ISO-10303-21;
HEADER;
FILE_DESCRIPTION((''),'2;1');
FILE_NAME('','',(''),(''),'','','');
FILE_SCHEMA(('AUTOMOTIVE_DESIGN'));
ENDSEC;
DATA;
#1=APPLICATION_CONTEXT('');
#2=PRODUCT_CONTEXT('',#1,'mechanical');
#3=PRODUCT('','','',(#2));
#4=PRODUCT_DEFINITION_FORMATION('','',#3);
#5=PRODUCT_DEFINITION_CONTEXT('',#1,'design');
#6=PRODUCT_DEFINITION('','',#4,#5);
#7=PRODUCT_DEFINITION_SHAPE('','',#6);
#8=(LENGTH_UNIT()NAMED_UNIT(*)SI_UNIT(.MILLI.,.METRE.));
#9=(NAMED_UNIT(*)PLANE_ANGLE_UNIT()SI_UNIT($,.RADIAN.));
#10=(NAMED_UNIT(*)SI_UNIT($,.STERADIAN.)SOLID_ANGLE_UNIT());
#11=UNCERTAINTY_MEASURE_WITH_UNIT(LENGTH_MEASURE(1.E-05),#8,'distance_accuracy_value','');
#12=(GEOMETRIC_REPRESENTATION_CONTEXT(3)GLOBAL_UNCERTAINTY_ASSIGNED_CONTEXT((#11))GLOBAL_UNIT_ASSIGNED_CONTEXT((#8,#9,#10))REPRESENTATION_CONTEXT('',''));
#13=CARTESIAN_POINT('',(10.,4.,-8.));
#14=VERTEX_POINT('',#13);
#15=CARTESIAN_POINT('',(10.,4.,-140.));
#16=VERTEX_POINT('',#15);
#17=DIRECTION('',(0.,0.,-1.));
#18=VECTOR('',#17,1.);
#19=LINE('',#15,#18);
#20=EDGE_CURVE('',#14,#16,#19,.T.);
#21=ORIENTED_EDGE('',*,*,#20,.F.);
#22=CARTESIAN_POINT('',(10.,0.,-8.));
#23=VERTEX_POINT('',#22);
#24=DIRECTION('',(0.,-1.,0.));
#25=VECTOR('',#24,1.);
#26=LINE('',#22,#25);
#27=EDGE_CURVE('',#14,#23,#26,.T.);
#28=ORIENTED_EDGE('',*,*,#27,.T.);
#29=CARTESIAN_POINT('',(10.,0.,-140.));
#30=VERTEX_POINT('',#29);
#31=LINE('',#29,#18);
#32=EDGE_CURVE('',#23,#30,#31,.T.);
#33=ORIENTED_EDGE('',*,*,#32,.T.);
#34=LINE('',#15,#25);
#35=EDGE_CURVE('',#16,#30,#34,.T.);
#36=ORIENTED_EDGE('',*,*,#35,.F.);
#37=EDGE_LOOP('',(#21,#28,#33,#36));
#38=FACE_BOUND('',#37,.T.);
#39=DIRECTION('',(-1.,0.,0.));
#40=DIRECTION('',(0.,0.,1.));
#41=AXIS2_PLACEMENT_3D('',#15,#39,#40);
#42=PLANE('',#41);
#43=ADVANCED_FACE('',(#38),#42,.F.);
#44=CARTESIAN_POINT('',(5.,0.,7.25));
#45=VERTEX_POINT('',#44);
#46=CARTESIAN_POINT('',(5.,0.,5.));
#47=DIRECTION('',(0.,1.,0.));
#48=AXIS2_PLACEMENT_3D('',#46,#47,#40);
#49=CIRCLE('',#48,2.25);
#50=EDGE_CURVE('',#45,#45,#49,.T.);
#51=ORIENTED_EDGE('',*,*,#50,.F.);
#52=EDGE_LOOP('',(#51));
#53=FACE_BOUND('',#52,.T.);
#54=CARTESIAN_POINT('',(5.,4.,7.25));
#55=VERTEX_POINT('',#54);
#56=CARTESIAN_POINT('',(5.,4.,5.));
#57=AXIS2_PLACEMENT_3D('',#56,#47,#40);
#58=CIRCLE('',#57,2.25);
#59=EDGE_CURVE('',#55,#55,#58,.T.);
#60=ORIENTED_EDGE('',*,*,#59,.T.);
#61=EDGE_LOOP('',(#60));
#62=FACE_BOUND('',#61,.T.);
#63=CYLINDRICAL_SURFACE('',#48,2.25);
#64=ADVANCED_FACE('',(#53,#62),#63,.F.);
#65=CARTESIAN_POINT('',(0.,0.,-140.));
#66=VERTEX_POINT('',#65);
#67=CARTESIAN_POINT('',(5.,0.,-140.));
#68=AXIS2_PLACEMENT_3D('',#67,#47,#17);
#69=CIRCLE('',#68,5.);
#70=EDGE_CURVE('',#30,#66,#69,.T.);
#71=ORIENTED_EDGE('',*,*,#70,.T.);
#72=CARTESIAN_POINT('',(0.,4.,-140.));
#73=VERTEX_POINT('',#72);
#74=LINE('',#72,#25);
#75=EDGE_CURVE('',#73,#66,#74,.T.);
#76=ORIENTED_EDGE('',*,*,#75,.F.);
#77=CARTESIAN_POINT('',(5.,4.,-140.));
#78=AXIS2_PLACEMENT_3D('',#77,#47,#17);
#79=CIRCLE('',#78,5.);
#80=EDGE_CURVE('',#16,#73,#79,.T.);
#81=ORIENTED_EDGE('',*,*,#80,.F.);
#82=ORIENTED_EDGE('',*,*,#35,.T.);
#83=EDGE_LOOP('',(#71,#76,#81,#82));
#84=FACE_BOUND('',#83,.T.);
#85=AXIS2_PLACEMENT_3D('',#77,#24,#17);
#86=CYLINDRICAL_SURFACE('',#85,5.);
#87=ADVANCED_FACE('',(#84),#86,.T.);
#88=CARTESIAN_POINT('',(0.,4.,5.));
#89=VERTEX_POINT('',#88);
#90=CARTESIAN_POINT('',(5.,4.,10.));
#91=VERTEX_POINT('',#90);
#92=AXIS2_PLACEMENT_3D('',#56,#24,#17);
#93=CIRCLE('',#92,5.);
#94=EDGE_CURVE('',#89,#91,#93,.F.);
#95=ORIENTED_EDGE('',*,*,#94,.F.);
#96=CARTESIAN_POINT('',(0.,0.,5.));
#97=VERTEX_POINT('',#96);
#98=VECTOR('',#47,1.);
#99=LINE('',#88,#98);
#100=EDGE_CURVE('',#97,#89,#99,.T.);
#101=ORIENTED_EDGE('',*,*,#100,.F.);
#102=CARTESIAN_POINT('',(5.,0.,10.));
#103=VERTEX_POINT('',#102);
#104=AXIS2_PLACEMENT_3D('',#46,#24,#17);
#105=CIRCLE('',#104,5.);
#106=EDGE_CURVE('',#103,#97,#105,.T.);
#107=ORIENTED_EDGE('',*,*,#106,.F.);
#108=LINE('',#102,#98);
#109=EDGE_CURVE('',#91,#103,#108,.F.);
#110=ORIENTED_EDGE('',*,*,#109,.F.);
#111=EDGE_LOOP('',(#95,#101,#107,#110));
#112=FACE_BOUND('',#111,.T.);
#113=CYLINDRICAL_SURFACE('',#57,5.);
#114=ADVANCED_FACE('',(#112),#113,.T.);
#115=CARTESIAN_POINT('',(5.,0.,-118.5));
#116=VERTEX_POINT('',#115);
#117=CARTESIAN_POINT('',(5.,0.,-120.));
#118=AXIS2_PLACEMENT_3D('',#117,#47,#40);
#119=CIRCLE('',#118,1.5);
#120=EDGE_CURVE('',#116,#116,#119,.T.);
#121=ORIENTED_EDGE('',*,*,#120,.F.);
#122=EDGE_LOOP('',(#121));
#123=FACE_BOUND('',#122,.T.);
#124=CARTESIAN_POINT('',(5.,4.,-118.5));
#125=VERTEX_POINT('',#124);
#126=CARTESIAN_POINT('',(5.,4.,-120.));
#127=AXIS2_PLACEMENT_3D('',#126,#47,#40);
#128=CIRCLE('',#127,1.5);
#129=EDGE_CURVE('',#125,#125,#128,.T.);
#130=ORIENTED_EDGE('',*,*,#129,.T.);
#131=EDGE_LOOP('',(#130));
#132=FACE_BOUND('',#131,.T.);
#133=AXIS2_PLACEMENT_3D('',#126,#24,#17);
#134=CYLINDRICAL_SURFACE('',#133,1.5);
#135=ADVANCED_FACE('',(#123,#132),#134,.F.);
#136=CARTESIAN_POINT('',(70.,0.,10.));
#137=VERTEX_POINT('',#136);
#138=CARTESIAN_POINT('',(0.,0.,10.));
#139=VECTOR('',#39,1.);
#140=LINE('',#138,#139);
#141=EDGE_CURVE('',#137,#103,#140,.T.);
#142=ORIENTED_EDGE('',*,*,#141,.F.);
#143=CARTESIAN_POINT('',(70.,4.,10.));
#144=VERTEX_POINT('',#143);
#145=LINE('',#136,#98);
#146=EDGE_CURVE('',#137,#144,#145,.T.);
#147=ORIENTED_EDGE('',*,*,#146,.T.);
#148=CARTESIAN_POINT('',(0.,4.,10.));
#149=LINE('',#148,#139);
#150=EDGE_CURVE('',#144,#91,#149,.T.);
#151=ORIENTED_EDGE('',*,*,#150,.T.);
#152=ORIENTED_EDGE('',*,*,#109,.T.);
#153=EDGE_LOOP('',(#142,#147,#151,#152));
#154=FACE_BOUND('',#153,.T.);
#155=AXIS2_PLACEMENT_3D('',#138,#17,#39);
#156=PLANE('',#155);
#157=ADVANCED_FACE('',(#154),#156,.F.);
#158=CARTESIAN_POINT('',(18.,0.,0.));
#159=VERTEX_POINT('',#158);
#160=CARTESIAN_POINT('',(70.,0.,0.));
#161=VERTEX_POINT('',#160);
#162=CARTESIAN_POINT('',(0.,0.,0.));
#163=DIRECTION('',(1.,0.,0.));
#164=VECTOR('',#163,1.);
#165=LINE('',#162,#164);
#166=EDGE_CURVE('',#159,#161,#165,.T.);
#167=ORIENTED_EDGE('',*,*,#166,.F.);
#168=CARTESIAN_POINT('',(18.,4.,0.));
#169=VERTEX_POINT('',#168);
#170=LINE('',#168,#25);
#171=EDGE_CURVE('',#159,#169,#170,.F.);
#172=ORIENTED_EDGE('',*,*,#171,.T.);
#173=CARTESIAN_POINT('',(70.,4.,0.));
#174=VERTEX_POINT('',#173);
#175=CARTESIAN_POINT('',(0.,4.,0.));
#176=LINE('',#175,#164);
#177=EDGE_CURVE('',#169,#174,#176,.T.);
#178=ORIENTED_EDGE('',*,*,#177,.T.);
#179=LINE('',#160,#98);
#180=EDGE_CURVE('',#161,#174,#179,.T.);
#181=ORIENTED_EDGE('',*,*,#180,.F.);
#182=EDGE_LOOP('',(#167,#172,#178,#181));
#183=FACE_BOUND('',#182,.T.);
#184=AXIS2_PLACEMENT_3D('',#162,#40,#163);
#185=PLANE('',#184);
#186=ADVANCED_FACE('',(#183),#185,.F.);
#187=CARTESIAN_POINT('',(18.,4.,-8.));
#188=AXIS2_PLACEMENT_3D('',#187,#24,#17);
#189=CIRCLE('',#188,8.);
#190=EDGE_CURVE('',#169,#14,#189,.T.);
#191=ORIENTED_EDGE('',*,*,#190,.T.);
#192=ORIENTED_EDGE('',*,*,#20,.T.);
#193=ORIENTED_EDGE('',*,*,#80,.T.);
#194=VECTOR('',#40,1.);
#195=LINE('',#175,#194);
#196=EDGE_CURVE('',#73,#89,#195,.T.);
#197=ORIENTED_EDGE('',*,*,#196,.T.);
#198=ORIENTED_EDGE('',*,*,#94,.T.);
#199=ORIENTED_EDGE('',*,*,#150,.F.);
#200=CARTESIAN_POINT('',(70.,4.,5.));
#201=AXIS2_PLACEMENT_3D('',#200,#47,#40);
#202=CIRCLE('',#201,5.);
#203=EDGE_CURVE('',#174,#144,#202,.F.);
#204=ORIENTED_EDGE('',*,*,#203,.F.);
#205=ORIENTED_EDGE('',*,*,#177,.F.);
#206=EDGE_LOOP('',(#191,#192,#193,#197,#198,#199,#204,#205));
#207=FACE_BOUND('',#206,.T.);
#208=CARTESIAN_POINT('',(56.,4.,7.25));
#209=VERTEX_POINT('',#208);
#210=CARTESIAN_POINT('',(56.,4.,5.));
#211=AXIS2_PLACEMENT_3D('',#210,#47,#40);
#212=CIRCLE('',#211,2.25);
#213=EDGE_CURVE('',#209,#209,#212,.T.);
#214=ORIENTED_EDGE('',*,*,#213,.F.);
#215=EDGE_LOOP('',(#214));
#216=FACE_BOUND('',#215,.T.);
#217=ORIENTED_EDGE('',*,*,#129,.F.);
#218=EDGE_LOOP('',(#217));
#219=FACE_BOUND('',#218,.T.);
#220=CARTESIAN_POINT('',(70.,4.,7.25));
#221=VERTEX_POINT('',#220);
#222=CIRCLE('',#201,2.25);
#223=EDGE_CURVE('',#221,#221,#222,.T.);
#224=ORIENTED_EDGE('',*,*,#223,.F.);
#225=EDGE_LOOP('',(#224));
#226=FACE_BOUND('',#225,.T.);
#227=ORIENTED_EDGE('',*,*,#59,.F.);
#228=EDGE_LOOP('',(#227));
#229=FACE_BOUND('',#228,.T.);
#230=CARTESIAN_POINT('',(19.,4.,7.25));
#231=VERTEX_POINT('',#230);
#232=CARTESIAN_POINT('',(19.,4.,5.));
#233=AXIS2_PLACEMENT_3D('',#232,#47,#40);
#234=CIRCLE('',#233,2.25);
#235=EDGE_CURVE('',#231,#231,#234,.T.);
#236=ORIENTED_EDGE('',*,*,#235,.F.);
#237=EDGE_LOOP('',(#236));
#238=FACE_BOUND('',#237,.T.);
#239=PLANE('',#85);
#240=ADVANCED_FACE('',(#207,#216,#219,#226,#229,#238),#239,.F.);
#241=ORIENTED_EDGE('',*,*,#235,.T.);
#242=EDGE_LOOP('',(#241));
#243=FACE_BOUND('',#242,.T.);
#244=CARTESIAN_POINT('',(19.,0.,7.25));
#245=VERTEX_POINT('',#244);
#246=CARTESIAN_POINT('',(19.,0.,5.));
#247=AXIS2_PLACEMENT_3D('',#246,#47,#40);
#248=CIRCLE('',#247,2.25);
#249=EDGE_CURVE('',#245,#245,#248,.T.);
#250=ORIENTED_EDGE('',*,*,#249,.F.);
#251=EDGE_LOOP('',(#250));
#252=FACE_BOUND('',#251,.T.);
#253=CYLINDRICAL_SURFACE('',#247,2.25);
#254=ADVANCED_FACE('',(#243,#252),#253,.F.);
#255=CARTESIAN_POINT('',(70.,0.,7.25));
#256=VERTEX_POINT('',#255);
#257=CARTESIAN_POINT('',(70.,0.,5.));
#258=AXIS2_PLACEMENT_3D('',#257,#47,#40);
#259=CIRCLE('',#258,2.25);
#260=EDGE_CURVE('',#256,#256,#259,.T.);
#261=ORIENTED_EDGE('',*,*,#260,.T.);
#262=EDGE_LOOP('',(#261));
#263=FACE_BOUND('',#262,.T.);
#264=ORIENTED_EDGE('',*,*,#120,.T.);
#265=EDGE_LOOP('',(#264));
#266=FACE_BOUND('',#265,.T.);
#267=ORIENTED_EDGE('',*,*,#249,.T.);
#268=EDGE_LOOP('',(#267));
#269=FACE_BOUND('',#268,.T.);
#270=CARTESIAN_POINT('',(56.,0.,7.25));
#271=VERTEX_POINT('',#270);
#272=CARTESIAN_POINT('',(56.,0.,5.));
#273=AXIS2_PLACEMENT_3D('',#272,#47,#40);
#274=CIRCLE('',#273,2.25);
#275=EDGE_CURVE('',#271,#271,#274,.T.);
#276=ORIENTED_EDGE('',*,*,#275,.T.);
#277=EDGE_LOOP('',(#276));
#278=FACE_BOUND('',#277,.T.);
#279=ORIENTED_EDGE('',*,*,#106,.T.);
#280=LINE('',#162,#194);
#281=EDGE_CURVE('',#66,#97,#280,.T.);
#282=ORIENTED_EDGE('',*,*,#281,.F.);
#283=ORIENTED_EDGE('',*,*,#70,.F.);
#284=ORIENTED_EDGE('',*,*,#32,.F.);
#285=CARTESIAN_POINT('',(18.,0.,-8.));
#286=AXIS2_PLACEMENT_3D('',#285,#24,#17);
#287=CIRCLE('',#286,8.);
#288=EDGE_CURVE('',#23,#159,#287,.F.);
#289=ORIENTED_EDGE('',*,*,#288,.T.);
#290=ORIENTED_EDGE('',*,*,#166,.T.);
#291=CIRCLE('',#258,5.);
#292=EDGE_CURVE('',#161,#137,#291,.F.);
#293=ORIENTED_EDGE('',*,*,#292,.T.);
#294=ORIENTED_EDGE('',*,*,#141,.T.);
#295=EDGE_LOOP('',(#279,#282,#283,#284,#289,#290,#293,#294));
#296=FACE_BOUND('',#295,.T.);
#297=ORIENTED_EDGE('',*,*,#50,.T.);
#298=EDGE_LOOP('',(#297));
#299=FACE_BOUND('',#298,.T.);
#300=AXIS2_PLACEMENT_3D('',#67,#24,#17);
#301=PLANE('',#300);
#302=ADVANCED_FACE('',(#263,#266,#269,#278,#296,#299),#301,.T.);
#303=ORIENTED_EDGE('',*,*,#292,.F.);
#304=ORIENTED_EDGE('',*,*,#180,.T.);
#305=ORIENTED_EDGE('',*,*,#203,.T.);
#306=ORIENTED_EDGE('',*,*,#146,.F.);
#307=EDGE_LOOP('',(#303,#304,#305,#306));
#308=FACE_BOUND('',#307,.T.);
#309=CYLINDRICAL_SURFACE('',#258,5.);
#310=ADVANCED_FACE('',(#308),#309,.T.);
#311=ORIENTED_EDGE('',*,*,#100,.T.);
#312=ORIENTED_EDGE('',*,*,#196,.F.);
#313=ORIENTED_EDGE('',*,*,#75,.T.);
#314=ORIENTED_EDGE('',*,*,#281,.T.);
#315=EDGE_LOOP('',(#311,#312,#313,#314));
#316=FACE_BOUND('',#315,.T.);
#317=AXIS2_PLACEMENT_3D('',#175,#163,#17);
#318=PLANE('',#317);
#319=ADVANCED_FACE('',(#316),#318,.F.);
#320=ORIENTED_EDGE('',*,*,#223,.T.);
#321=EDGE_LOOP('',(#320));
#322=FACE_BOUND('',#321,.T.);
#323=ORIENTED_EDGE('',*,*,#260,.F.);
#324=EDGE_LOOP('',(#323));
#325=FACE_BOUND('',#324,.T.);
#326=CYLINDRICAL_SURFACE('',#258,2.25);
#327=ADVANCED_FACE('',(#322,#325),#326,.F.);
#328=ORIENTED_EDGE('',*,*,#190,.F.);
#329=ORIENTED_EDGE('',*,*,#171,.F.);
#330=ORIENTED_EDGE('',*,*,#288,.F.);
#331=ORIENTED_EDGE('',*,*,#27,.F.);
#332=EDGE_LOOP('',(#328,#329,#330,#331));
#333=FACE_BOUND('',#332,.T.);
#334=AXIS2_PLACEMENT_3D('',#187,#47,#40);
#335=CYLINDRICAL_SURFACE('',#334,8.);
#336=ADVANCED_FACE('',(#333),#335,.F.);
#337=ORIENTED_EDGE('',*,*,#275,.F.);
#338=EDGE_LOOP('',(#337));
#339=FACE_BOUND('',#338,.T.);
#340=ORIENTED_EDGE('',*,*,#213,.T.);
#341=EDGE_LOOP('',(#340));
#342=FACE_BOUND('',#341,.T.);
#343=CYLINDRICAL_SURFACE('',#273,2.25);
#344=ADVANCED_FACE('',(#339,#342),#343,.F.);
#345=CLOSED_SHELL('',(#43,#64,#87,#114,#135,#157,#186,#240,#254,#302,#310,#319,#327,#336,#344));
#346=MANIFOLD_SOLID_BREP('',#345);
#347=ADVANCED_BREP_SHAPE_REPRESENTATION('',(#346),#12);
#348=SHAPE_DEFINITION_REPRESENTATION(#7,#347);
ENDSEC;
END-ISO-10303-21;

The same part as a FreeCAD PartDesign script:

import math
import FreeCAD as App
import Part
import Sketcher

V = App.Vector
Q = App.Units.Quantity


def edges_at(feature, points):
    """Names of the edges that pass closest to the given points."""
    edges = feature.Shape.Edges
    near = lambda p: min(range(len(edges)), key=lambda i: edges[i].distToShape(Part.Vertex(*p))[0])
    return sorted({f"Edge{near(p) + 1}" for p in points})

doc = App.newDocument("Part")
body = doc.addObject("PartDesign::Body", "Body")

sketch1 = body.newObject("Sketcher::SketchObject", "Sketch")
sketch1.AttachmentSupport = (doc.getObject("XZ_Plane"), [""])
sketch1.MapMode = "FlatFace"
sketch1.addGeometry(Part.LineSegment(V(10, 0, 0), V(10, -140, 0)), False)
sketch1.addGeometry(Part.ArcOfCircle(Part.Circle(V(5, -140, 0), V(0, 0, 1), 5), math.radians(180), math.radians(360)), False)
sketch1.addGeometry(Part.LineSegment(V(0, -140, 0), V(0, 0, 0)), False)
sketch1.addGeometry(Part.LineSegment(V(0, 0, 0), V(10, 0, 0)), False)
sketch1.addGeometry(Part.Circle(V(5, -120, 0), V(0, 0, 1), 1.5), False)
sketch1.addConstraint(Sketcher.Constraint("Tangent", 0, 2, 1, 2))
sketch1.addConstraint(Sketcher.Constraint("Tangent", 1, 1, 2, 1))
sketch1.addConstraint(Sketcher.Constraint("Coincident", 2, 2, 3, 1))
sketch1.addConstraint(Sketcher.Constraint("Coincident", 3, 2, 0, 1))
sketch1.addConstraint(Sketcher.Constraint("Vertical", 0))
sketch1.addConstraint(Sketcher.Constraint("Vertical", 2))
sketch1.addConstraint(Sketcher.Constraint("Horizontal", 3))
sketch1.addConstraint(Sketcher.Constraint("Coincident", 2, 2, -1, 1))
sketch1.addConstraint(Sketcher.Constraint("Vertical", 1, 3, 4, 3))
sketch1.addConstraint(Sketcher.Constraint("Diameter", 4, Q("3 mm")))
sketch1.addConstraint(Sketcher.Constraint("Radius", 1, Q("5 mm")))
sketch1.addConstraint(Sketcher.Constraint("DistanceY", 0, 2, 0, 1, Q("140 mm")))
sketch1.addConstraint(Sketcher.Constraint("DistanceY", 4, 3, -1, 1, Q("120 mm")))
pad1 = body.newObject("PartDesign::Pad", "Pad")
pad1.Profile = sketch1
pad1.Length = 4
pad1.Reversed = True

sketch2 = body.newObject("Sketcher::SketchObject", "Sketch001")
sketch2.AttachmentSupport = (doc.getObject("XZ_Plane"), [""])
sketch2.MapMode = "FlatFace"
sketch2.AttachmentOffset = App.Placement(V(0, 0, -4), App.Rotation())
sketch2.addGeometry(Part.LineSegment(V(70, 0, 0), V(0, 0, 0)), False)
sketch2.addGeometry(Part.LineSegment(V(0, 0, 0), V(0, 10, 0)), False)
sketch2.addGeometry(Part.LineSegment(V(0, 10, 0), V(70, 10, 0)), False)
sketch2.addGeometry(Part.ArcOfCircle(Part.Circle(V(70, 5, 0), V(0, 0, 1), 5), math.radians(-90), math.radians(90)), False)
sketch2.addGeometry(Part.Circle(V(5, 5, 0), V(0, 0, 1), 2.2), False)
sketch2.addGeometry(Part.Circle(V(19, 5, 0), V(0, 0, 1), 2.2), False)
sketch2.addGeometry(Part.Circle(V(56, 5, 0), V(0, 0, 1), 2.2), False)
sketch2.addGeometry(Part.Circle(V(70, 5, 0), V(0, 0, 1), 2.2), False)
sketch2.addConstraint(Sketcher.Constraint("Coincident", 0, 2, 1, 1))
sketch2.addConstraint(Sketcher.Constraint("Coincident", 1, 2, 2, 1))
sketch2.addConstraint(Sketcher.Constraint("Tangent", 2, 2, 3, 2))
sketch2.addConstraint(Sketcher.Constraint("Tangent", 3, 1, 0, 1))
sketch2.addConstraint(Sketcher.Constraint("Horizontal", 0))
sketch2.addConstraint(Sketcher.Constraint("Vertical", 1))
sketch2.addConstraint(Sketcher.Constraint("Horizontal", 2))
sketch2.addConstraint(Sketcher.Constraint("Coincident", 0, 2, -1, 1))
sketch2.addConstraint(Sketcher.Constraint("Coincident", 7, 3, 3, 3))
sketch2.addConstraint(Sketcher.Constraint("Equal", 4, 5))
sketch2.addConstraint(Sketcher.Constraint("Equal", 5, 6))
sketch2.addConstraint(Sketcher.Constraint("Equal", 6, 7))
sketch2.addConstraint(Sketcher.Constraint("Horizontal", 3, 3, 4, 3))
sketch2.addConstraint(Sketcher.Constraint("Horizontal", 4, 3, 5, 3))
sketch2.addConstraint(Sketcher.Constraint("Horizontal", 5, 3, 6, 3))
sketch2.addConstraint(Sketcher.Constraint("Radius", 3, Q("5 mm")))
sketch2.addConstraint(Sketcher.Constraint("Diameter", 4, Q("4.5 mm")))
sketch2.addConstraint(Sketcher.Constraint("DistanceX", 0, 2, 0, 1, Q("70 mm")))
sketch2.addConstraint(Sketcher.Constraint("DistanceX", -1, 1, 4, 3, Q("5 mm")))
sketch2.addConstraint(Sketcher.Constraint("DistanceX", -1, 1, 5, 3, Q("19 mm")))
sketch2.addConstraint(Sketcher.Constraint("DistanceX", -1, 1, 6, 3, Q("56 mm")))
pad2 = body.newObject("PartDesign::Pad", "Pad001")
pad2.Profile = sketch2
pad2.Length = 4
doc.recompute()

fillet = body.newObject("PartDesign::Fillet", "Fillet")
fillet.Base = (pad2, edges_at(pad2, [(10, 2, 0)]))
fillet.Radius = 8
doc.recompute()

fillet2 = body.newObject("PartDesign::Fillet", "Fillet001")
fillet2.Base = (fillet, edges_at(fillet, [(0, 2, 10)]))
fillet2.Radius = 5

doc.recompute()
